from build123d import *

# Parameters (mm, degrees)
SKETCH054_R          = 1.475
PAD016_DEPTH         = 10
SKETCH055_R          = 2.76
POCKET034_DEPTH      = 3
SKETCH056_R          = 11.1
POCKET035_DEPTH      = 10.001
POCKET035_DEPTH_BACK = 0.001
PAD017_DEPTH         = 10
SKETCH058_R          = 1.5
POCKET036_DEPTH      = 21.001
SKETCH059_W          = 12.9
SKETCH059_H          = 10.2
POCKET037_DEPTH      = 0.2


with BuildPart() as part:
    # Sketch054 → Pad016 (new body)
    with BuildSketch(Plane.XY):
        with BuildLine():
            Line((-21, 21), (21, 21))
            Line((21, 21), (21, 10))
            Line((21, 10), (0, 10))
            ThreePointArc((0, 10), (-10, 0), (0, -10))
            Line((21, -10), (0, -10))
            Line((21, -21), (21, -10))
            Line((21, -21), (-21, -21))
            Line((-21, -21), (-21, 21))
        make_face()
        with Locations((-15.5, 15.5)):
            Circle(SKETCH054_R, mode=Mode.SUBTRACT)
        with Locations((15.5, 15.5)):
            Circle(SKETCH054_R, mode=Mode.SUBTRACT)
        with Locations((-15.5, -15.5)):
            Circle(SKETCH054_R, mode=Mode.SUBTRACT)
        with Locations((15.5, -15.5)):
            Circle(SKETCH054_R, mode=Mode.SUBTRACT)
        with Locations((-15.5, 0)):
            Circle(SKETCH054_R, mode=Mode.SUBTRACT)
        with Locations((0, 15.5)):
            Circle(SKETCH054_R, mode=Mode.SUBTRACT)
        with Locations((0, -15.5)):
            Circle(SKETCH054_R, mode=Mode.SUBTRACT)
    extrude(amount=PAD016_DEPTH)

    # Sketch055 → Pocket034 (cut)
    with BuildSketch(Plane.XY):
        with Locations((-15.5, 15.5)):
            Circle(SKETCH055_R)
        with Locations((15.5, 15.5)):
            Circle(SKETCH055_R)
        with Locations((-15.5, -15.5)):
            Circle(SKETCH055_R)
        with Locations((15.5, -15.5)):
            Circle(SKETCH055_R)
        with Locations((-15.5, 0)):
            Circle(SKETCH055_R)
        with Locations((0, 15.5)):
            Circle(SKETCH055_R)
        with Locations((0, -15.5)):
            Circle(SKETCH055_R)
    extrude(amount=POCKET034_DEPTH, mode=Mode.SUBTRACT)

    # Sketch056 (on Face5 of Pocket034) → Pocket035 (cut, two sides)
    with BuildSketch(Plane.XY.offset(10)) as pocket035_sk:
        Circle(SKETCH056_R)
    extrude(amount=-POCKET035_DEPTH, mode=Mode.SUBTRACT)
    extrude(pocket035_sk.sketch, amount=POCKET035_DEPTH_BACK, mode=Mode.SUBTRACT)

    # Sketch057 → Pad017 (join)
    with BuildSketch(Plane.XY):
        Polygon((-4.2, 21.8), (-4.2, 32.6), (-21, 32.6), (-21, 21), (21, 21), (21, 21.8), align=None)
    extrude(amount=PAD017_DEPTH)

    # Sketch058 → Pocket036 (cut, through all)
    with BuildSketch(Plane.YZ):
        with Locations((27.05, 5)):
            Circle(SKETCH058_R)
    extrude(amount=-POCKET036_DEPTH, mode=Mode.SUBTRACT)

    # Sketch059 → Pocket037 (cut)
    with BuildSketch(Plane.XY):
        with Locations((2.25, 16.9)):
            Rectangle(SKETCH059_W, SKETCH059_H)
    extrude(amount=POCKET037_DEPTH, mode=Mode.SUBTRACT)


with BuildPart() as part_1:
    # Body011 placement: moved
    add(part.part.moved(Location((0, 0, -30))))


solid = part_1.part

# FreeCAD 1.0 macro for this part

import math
import FreeCAD as App
import Part
import Sketcher
from FreeCAD import Vector
Q = App.Units.Quantity

doc = App.newDocument("Part")
body = doc.addObject("PartDesign::Body", "Body")

# Sketch on XY plane
sketch1 = body.newObject("Sketcher::SketchObject", "Sketch")
sketch1.AttachmentSupport = (doc.getObject("XY_Plane"), [""])
sketch1.MapMode = "FlatFace"
sketch1.addGeometry(Part.LineSegment(Vector(21, 21, 0), Vector(-21, 21, 0)), False)
sketch1.addGeometry(Part.LineSegment(Vector(-21, 21, 0), Vector(-21, -21, 0)), False)
sketch1.addGeometry(Part.LineSegment(Vector(-21, -21, 0), Vector(21, -21, 0)), False)
sketch1.addGeometry(Part.LineSegment(Vector(21, -21, 0), Vector(21, -10, 0)), False)
sketch1.addGeometry(Part.LineSegment(Vector(21, -10, 0), Vector(0, -10, 0)), False)
sketch1.addGeometry(Part.ArcOfCircle(Part.Circle(Vector(0, 0, 0), Vector(0, 0, 1), 10), math.radians(90), math.radians(270)), False)
sketch1.addGeometry(Part.LineSegment(Vector(0, 10, 0), Vector(21, 10, 0)), False)
sketch1.addGeometry(Part.LineSegment(Vector(21, 10, 0), Vector(21, 21, 0)), False)
sketch1.addGeometry(Part.Circle(Vector(15.5, -15.5, 0), Vector(0, 0, 1), 1.475), False)
sketch1.addGeometry(Part.Circle(Vector(0, -15.5, 0), Vector(0, 0, 1), 1.475), False)
sketch1.addGeometry(Part.Circle(Vector(-15.5, -15.5, 0), Vector(0, 0, 1), 1.475), False)
sketch1.addGeometry(Part.Circle(Vector(15.5, 15.5, 0), Vector(0, 0, 1), 1.475), False)
sketch1.addGeometry(Part.Circle(Vector(-15.5, 0, 0), Vector(0, 0, 1), 1.475), False)
sketch1.addGeometry(Part.Circle(Vector(0, 15.5, 0), Vector(0, 0, 1), 1.475), False)
sketch1.addGeometry(Part.Circle(Vector(-15.5, 15.5, 0), Vector(0, 0, 1), 1.475), False)
sketch1.addConstraint(Sketcher.Constraint("Coincident", 0, 2, 1, 1))
sketch1.addConstraint(Sketcher.Constraint("Coincident", 1, 2, 2, 1))
sketch1.addConstraint(Sketcher.Constraint("Coincident", 2, 2, 3, 1))
sketch1.addConstraint(Sketcher.Constraint("Coincident", 3, 2, 4, 1))
sketch1.addConstraint(Sketcher.Constraint("Tangent", 4, 2, 5, 2))
sketch1.addConstraint(Sketcher.Constraint("Tangent", 5, 1, 6, 1))
sketch1.addConstraint(Sketcher.Constraint("Coincident", 6, 2, 7, 1))
sketch1.addConstraint(Sketcher.Constraint("Coincident", 7, 2, 0, 1))
sketch1.addConstraint(Sketcher.Constraint("Horizontal", 0))
sketch1.addConstraint(Sketcher.Constraint("Vertical", 1))
sketch1.addConstraint(Sketcher.Constraint("Horizontal", 2))
sketch1.addConstraint(Sketcher.Constraint("Vertical", 3))
sketch1.addConstraint(Sketcher.Constraint("Horizontal", 4))
sketch1.addConstraint(Sketcher.Constraint("Horizontal", 6))
sketch1.addConstraint(Sketcher.Constraint("Vertical", 7))
sketch1.addConstraint(Sketcher.Constraint("Coincident", 5, 3, -1, 1))
sketch1.addConstraint(Sketcher.Constraint("Equal", 8, 9))
sketch1.addConstraint(Sketcher.Constraint("Equal", 9, 10))
sketch1.addConstraint(Sketcher.Constraint("Equal", 10, 11))
sketch1.addConstraint(Sketcher.Constraint("Equal", 11, 12))
sketch1.addConstraint(Sketcher.Constraint("Equal", 12, 13))
sketch1.addConstraint(Sketcher.Constraint("Equal", 13, 14))
sketch1.addConstraint(Sketcher.Constraint("Symmetric", 10, 3, 11, 3, -1, 1))
sketch1.addConstraint(Sketcher.Constraint("Symmetric", 9, 3, 13, 3, -1, 1))
sketch1.addConstraint(Sketcher.Constraint("Symmetric", 8, 3, 14, 3, -1, 1))
sketch1.addConstraint(Sketcher.Constraint("Symmetric", 0, 2, 2, 2, -1, 1))
sketch1.addConstraint(Sketcher.Constraint("Symmetric", 8, 3, 10, 3, -2))
sketch1.addConstraint(Sketcher.Constraint("PointOnObject", 9, 3, -2))
sketch1.addConstraint(Sketcher.Constraint("PointOnObject", 12, 3, -1))
sketch1.addConstraint(Sketcher.Constraint("Horizontal", 8, 3, 9, 3))
sketch1.addConstraint(Sketcher.Constraint("Vertical", 10, 3, 12, 3))
sketch1.addConstraint(Sketcher.Constraint("Vertical", 3, 2, 6, 2))
sketch1.addConstraint(Sketcher.Constraint("Equal", 2, 1))
sketch1.addConstraint(Sketcher.Constraint("Radius", 5, Q("10 mm")))
sketch1.addConstraint(Sketcher.Constraint("Diameter", 8, Q("2.95 mm")))
sketch1.addConstraint(Sketcher.Constraint("DistanceX", 0, 2, 0, 1, Q("42 mm")))
sketch1.addConstraint(Sketcher.Constraint("DistanceX", 10, 3, 8, 3, Q("31 mm")))
sketch1.addConstraint(Sketcher.Constraint("DistanceY", 8, 3, 11, 3, Q("31 mm")))
pad1 = body.newObject("PartDesign::Pad", "Pad")
pad1.Profile = sketch1
pad1.Length = 10

# Sketch on XY plane
sketch2 = body.newObject("Sketcher::SketchObject", "Sketch001")
sketch2.AttachmentSupport = (doc.getObject("XY_Plane"), [""])
sketch2.MapMode = "FlatFace"
sketch2.addGeometry(Part.Circle(Vector(-15.5, 15.5, 0), Vector(0, 0, 1), 2.76), False)
sketch2.addGeometry(Part.Circle(Vector(15.5, 15.5, 0), Vector(0, 0, 1), 2.76), False)
sketch2.addGeometry(Part.Circle(Vector(-15.5, -15.5, 0), Vector(0, 0, 1), 2.76), False)
sketch2.addGeometry(Part.Circle(Vector(15.5, -15.5, 0), Vector(0, 0, 1), 2.76), False)
sketch2.addGeometry(Part.Circle(Vector(-15.5, 0, 0), Vector(0, 0, 1), 2.76), False)
sketch2.addGeometry(Part.Circle(Vector(0, 15.5, 0), Vector(0, 0, 1), 2.76), False)
sketch2.addGeometry(Part.Circle(Vector(0, -15.5, 0), Vector(0, 0, 1), 2.76), False)
sketch2.addConstraint(Sketcher.Constraint("Equal", 0, 1))
sketch2.addConstraint(Sketcher.Constraint("Equal", 1, 2))
sketch2.addConstraint(Sketcher.Constraint("Equal", 2, 3))
sketch2.addConstraint(Sketcher.Constraint("Equal", 3, 4))
sketch2.addConstraint(Sketcher.Constraint("Equal", 4, 5))
sketch2.addConstraint(Sketcher.Constraint("Equal", 5, 6))
sketch2.addConstraint(Sketcher.Constraint("Symmetric", 1, 3, 2, 3, -1, 1))
sketch2.addConstraint(Sketcher.Constraint("Symmetric", 0, 3, 3, 3, -1, 1))
sketch2.addConstraint(Sketcher.Constraint("Symmetric", 5, 3, 6, 3, -1, 1))
sketch2.addConstraint(Sketcher.Constraint("Symmetric", 0, 3, 1, 3, -2))
sketch2.addConstraint(Sketcher.Constraint("PointOnObject", 4, 3, -1))
sketch2.addConstraint(Sketcher.Constraint("PointOnObject", 5, 3, -2))
sketch2.addConstraint(Sketcher.Constraint("Horizontal", 1, 3, 5, 3))
sketch2.addConstraint(Sketcher.Constraint("Vertical", 2, 3, 4, 3))
sketch2.addConstraint(Sketcher.Constraint("Diameter", 0, Q("5.52 mm")))
sketch2.addConstraint(Sketcher.Constraint("DistanceX", 0, 3, 1, 3, Q("31 mm")))
sketch2.addConstraint(Sketcher.Constraint("DistanceY", 2, 3, 0, 3, Q("31 mm")))
pocket1 = body.newObject("PartDesign::Pocket", "Pocket")
pocket1.Profile = sketch2
pocket1.Length = 3
pocket1.Reversed = True

# Sketch on XY plane
sketch3 = body.newObject("Sketcher::SketchObject", "Sketch002")
sketch3.AttachmentSupport = (doc.getObject("XY_Plane"), [""])
sketch3.MapMode = "FlatFace"
sketch3.AttachmentOffset = App.Placement(Vector(0, 0, 10), App.Rotation())
sketch3.addGeometry(Part.Circle(Vector(0, 0, 0), Vector(0, 0, 1), 11.1), False)
sketch3.addConstraint(Sketcher.Constraint("Coincident", 0, 3, -1, 1))
sketch3.addConstraint(Sketcher.Constraint("Diameter", 0, Q("22.2 mm")))
pocket2 = body.newObject("PartDesign::Pocket", "Pocket001")
pocket2.Profile = sketch3
pocket2.Type = "ThroughAll"
pocket2.Midplane = True

# Sketch on XY plane
sketch4 = body.newObject("Sketcher::SketchObject", "Sketch003")
sketch4.AttachmentSupport = (doc.getObject("XY_Plane"), [""])
sketch4.MapMode = "FlatFace"
sketch4.addGeometry(Part.LineSegment(Vector(-4.2, 21.8, 0), Vector(-4.2, 32.6, 0)), False)
sketch4.addGeometry(Part.LineSegment(Vector(-4.2, 32.6, 0), Vector(-21, 32.6, 0)), False)
sketch4.addGeometry(Part.LineSegment(Vector(-21, 32.6, 0), Vector(-21, 21, 0)), False)
sketch4.addGeometry(Part.LineSegment(Vector(-21, 21, 0), Vector(21, 21, 0)), False)
sketch4.addGeometry(Part.LineSegment(Vector(21, 21, 0), Vector(21, 21.8, 0)), False)
sketch4.addGeometry(Part.LineSegment(Vector(21, 21.8, 0), Vector(-4.2, 21.8, 0)), False)
sketch4.addConstraint(Sketcher.Constraint("Coincident", 0, 2, 1, 1))
sketch4.addConstraint(Sketcher.Constraint("Coincident", 1, 2, 2, 1))
sketch4.addConstraint(Sketcher.Constraint("Coincident", 2, 2, 3, 1))
sketch4.addConstraint(Sketcher.Constraint("Coincident", 3, 2, 4, 1))
sketch4.addConstraint(Sketcher.Constraint("Coincident", 4, 2, 5, 1))
sketch4.addConstraint(Sketcher.Constraint("Coincident", 5, 2, 0, 1))
sketch4.addConstraint(Sketcher.Constraint("Vertical", 0))
sketch4.addConstraint(Sketcher.Constraint("Horizontal", 1))
sketch4.addConstraint(Sketcher.Constraint("Vertical", 2))
sketch4.addConstraint(Sketcher.Constraint("Horizontal", 3))
sketch4.addConstraint(Sketcher.Constraint("Vertical", 4))
sketch4.addConstraint(Sketcher.Constraint("Horizontal", 5))
sketch4.addConstraint(Sketcher.Constraint("DistanceX", 3, 1, 3, 2, Q("42 mm")))
sketch4.addConstraint(Sketcher.Constraint("DistanceX", 1, 2, 1, 1, Q("16.8 mm")))
sketch4.addConstraint(Sketcher.Constraint("DistanceY", 0, 1, 0, 2, Q("10.8 mm")))
sketch4.addConstraint(Sketcher.Constraint("DistanceY", 2, 2, 2, 1, Q("11.6 mm")))
sketch4.addConstraint(Sketcher.Constraint("DistanceX", 1, 2, -1, 1, Q("21 mm")))
sketch4.addConstraint(Sketcher.Constraint("DistanceY", -1, 1, 2, 2, Q("21 mm")))
pad2 = body.newObject("PartDesign::Pad", "Pad001")
pad2.Profile = sketch4
pad2.Length = 10

# Sketch on YZ plane
sketch5 = body.newObject("Sketcher::SketchObject", "Sketch004")
sketch5.AttachmentSupport = (doc.getObject("YZ_Plane"), [""])
sketch5.MapMode = "FlatFace"
sketch5.addGeometry(Part.Circle(Vector(27.05, 5, 0), Vector(0, 0, 1), 1.5), False)
sketch5.addConstraint(Sketcher.Constraint("Diameter", 0, Q("3 mm")))
sketch5.addConstraint(Sketcher.Constraint("DistanceY", -1, 1, 0, 3, Q("5 mm")))
sketch5.addConstraint(Sketcher.Constraint("DistanceX", -1, 1, 0, 3, Q("27.05 mm")))
pocket3 = body.newObject("PartDesign::Pocket", "Pocket002")
pocket3.Profile = sketch5
pocket3.Type = "ThroughAll"

# Sketch on XY plane
sketch6 = body.newObject("Sketcher::SketchObject", "Sketch005")
sketch6.AttachmentSupport = (doc.getObject("XY_Plane"), [""])
sketch6.MapMode = "FlatFace"
sketch6.addGeometry(Part.LineSegment(Vector(-4.2, 22, 0), Vector(-4.2, 11.8, 0)), False)
sketch6.addGeometry(Part.LineSegment(Vector(-4.2, 11.8, 0), Vector(8.7, 11.8, 0)), False)
sketch6.addGeometry(Part.LineSegment(Vector(8.7, 11.8, 0), Vector(8.7, 22, 0)), False)
sketch6.addGeometry(Part.LineSegment(Vector(8.7, 22, 0), Vector(-4.2, 22, 0)), False)
sketch6.addConstraint(Sketcher.Constraint("Coincident", 0, 2, 1, 1))
sketch6.addConstraint(Sketcher.Constraint("Coincident", 1, 2, 2, 1))
sketch6.addConstraint(Sketcher.Constraint("Coincident", 2, 2, 3, 1))
sketch6.addConstraint(Sketcher.Constraint("Coincident", 3, 2, 0, 1))
sketch6.addConstraint(Sketcher.Constraint("Vertical", 0))
sketch6.addConstraint(Sketcher.Constraint("Horizontal", 1))
sketch6.addConstraint(Sketcher.Constraint("Vertical", 2))
sketch6.addConstraint(Sketcher.Constraint("Horizontal", 3))
sketch6.addConstraint(Sketcher.Constraint("DistanceX", 1, 1, 1, 2, Q("12.9 mm")))
sketch6.addConstraint(Sketcher.Constraint("DistanceY", 0, 2, 0, 1, Q("10.2 mm")))
sketch6.addConstraint(Sketcher.Constraint("DistanceY", -1, 1, 2, 2, Q("22 mm")))
sketch6.addConstraint(Sketcher.Constraint("DistanceX", 0, 2, -1, 1, Q("4.2 mm")))
pocket4 = body.newObject("PartDesign::Pocket", "Pocket003")
pocket4.Profile = sketch6
pocket4.Length = 0.2
pocket4.Reversed = True
body2 = doc.addObject("PartDesign::Body", "Body001")
doc.recompute()

body.Placement = App.Placement(Vector(0, 0, -30), App.Rotation(Vector(0, 0, 1), 0))
boolean = body2.newObject("PartDesign::Boolean", "Boolean")
boolean.Type = "Fuse"
boolean.addObjects([body])

doc.recompute()
